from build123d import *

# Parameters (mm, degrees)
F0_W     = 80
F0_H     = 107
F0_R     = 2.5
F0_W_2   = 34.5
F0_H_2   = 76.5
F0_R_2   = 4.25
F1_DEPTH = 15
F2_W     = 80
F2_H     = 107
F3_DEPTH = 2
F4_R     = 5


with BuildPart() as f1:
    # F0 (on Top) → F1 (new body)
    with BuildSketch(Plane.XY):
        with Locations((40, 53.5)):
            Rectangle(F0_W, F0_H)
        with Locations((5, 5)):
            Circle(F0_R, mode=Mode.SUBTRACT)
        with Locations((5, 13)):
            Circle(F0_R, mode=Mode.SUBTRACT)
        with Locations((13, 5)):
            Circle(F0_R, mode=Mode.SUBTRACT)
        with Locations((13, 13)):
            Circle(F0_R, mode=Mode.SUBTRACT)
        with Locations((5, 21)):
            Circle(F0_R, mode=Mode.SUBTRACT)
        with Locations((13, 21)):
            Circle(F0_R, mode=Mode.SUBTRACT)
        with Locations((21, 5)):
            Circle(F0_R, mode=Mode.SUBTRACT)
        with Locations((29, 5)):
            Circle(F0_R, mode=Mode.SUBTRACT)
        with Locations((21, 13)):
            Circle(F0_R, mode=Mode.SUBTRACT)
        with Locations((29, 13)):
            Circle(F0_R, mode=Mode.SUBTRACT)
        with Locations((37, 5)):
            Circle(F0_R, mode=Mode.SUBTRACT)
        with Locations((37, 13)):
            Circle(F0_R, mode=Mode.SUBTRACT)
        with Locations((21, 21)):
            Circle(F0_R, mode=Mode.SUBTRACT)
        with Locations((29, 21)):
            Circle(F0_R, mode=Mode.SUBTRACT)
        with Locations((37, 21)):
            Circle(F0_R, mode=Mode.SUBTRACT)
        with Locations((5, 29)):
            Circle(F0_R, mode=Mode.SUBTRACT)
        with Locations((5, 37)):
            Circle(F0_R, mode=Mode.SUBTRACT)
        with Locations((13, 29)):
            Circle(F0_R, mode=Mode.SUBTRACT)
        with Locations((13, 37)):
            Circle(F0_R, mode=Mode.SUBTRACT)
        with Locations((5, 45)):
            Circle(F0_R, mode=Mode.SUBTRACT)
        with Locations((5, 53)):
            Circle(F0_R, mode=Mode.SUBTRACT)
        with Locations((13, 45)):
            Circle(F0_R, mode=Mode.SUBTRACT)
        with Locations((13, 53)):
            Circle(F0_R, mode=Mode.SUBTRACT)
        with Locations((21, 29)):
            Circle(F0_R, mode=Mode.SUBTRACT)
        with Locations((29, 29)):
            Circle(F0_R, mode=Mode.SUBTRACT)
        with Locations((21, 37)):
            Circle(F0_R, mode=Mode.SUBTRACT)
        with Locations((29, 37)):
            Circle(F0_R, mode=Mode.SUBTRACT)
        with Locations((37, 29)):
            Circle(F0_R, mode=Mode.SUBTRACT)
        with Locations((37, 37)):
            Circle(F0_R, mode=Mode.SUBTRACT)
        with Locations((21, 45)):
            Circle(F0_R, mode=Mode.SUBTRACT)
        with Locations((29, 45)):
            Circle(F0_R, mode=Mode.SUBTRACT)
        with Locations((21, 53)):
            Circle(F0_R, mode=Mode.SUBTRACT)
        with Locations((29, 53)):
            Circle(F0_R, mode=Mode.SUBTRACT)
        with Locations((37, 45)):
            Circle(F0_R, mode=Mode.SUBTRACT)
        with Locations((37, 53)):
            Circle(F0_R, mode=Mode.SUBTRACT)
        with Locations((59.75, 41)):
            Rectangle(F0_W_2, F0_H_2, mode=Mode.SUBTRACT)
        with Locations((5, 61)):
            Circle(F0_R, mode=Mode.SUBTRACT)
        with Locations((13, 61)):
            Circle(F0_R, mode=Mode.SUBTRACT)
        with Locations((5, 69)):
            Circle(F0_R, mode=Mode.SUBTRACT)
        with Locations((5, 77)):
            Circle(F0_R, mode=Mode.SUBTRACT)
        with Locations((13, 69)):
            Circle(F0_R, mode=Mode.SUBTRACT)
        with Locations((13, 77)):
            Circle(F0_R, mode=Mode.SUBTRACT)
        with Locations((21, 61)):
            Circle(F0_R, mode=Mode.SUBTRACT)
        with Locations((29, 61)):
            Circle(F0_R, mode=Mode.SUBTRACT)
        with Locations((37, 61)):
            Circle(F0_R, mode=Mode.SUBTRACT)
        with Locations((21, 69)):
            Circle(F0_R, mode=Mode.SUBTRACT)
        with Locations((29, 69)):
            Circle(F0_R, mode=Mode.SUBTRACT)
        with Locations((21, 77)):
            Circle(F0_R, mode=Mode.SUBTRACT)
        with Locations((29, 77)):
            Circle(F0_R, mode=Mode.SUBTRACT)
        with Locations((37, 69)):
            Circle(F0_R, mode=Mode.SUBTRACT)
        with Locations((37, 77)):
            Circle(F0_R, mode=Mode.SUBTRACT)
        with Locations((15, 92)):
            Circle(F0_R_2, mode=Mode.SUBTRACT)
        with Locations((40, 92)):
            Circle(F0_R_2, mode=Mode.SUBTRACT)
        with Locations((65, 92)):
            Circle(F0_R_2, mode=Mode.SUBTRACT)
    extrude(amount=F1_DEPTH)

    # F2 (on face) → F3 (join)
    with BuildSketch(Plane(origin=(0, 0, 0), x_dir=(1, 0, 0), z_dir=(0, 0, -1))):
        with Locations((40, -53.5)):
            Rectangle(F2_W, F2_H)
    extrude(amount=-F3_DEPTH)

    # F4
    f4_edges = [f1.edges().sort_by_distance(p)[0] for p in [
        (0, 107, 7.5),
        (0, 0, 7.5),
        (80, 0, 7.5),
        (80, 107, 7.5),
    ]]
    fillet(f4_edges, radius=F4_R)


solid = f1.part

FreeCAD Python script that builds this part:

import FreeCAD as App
import Part
import Sketcher
from FreeCAD import Vector
Q = App.Units.Quantity


def edges_at(feature, points):
    """Names of the edges that pass closest to the given points."""
    edges = feature.Shape.Edges
    near = lambda p: min(range(len(edges)), key=lambda i: edges[i].distToShape(Part.Vertex(*p))[0])
    return sorted({f"Edge{near(p) + 1}" for p in points})


def add_polygon(sketch, points):
    """Adds a closed chain of lines whose ends are joined by coincident constraints."""
    first, n = sketch.GeometryCount, len(points)
    for a, b in zip(points, points[1:] + points[:1]):
        sketch.addGeometry(Part.LineSegment(App.Vector(*a, 0), App.Vector(*b, 0)), False)
    for i in range(n):
        sketch.addConstraint(Sketcher.Constraint("Coincident", first + i, 2, first + (i + 1) % n, 1))

doc = App.newDocument("Part")
body = doc.addObject("PartDesign::Body", "Body")

sketch1 = doc.addObject("Sketcher::SketchObject", "Sketch")
body.addObject(sketch1)
sketch1.AttachmentSupport = (doc.XY_Plane, [""])
sketch1.MapMode = "FlatFace"
add_polygon(sketch1, [(0, 107), (0, 0), (80, 0), (80, 107)])
sketch1.addGeometry(Part.Circle(Vector(5, 5, 0), Vector(0, 0, 1), 2.5), False)
sketch1.addGeometry(Part.Circle(Vector(5, 13, 0), Vector(0, 0, 1), 2.5), False)
sketch1.addGeometry(Part.Circle(Vector(13, 5, 0), Vector(0, 0, 1), 2.5), False)
sketch1.addGeometry(Part.Circle(Vector(21, 5, 0), Vector(0, 0, 1), 2.5), False)
sketch1.addGeometry(Part.Circle(Vector(13, 13, 0), Vector(0, 0, 1), 2.5), False)
sketch1.addGeometry(Part.Circle(Vector(21, 13, 0), Vector(0, 0, 1), 2.5), False)
sketch1.addGeometry(Part.Circle(Vector(5, 21, 0), Vector(0, 0, 1), 2.5), False)
sketch1.addGeometry(Part.Circle(Vector(13, 21, 0), Vector(0, 0, 1), 2.5), False)
sketch1.addGeometry(Part.Circle(Vector(21, 21, 0), Vector(0, 0, 1), 2.5), False)
sketch1.addGeometry(Part.Circle(Vector(29, 5, 0), Vector(0, 0, 1), 2.5), False)
sketch1.addGeometry(Part.Circle(Vector(29, 13, 0), Vector(0, 0, 1), 2.5), False)
sketch1.addGeometry(Part.Circle(Vector(37, 5, 0), Vector(0, 0, 1), 2.5), False)
sketch1.addGeometry(Part.Circle(Vector(37, 13, 0), Vector(0, 0, 1), 2.5), False)
sketch1.addGeometry(Part.Circle(Vector(29, 21, 0), Vector(0, 0, 1), 2.5), False)
sketch1.addGeometry(Part.Circle(Vector(37, 21, 0), Vector(0, 0, 1), 2.5), False)
sketch1.addGeometry(Part.Circle(Vector(5, 29, 0), Vector(0, 0, 1), 2.5), False)
sketch1.addGeometry(Part.Circle(Vector(5, 37, 0), Vector(0, 0, 1), 2.5), False)
sketch1.addGeometry(Part.Circle(Vector(13, 29, 0), Vector(0, 0, 1), 2.5), False)
sketch1.addGeometry(Part.Circle(Vector(21, 29, 0), Vector(0, 0, 1), 2.5), False)
sketch1.addGeometry(Part.Circle(Vector(13, 37, 0), Vector(0, 0, 1), 2.5), False)
sketch1.addGeometry(Part.Circle(Vector(21, 37, 0), Vector(0, 0, 1), 2.5), False)
sketch1.addGeometry(Part.Circle(Vector(5, 45, 0), Vector(0, 0, 1), 2.5), False)
sketch1.addGeometry(Part.Circle(Vector(13, 45, 0), Vector(0, 0, 1), 2.5), False)
sketch1.addGeometry(Part.Circle(Vector(21, 45, 0), Vector(0, 0, 1), 2.5), False)
sketch1.addGeometry(Part.Circle(Vector(29, 29, 0), Vector(0, 0, 1), 2.5), False)
sketch1.addGeometry(Part.Circle(Vector(29, 37, 0), Vector(0, 0, 1), 2.5), False)
sketch1.addGeometry(Part.Circle(Vector(37, 29, 0), Vector(0, 0, 1), 2.5), False)
sketch1.addGeometry(Part.Circle(Vector(37, 37, 0), Vector(0, 0, 1), 2.5), False)
sketch1.addGeometry(Part.Circle(Vector(29, 45, 0), Vector(0, 0, 1), 2.5), False)
sketch1.addGeometry(Part.Circle(Vector(37, 45, 0), Vector(0, 0, 1), 2.5), False)
add_polygon(sketch1, [(77, 2.75), (42.5, 2.75), (42.5, 79.25), (77, 79.25)])
sketch1.addGeometry(Part.Circle(Vector(5, 53, 0), Vector(0, 0, 1), 2.5), False)
sketch1.addGeometry(Part.Circle(Vector(5, 61, 0), Vector(0, 0, 1), 2.5), False)
sketch1.addGeometry(Part.Circle(Vector(13, 53, 0), Vector(0, 0, 1), 2.5), False)
sketch1.addGeometry(Part.Circle(Vector(21, 53, 0), Vector(0, 0, 1), 2.5), False)
sketch1.addGeometry(Part.Circle(Vector(13, 61, 0), Vector(0, 0, 1), 2.5), False)
sketch1.addGeometry(Part.Circle(Vector(21, 61, 0), Vector(0, 0, 1), 2.5), False)
sketch1.addGeometry(Part.Circle(Vector(5, 69, 0), Vector(0, 0, 1), 2.5), False)
sketch1.addGeometry(Part.Circle(Vector(13, 69, 0), Vector(0, 0, 1), 2.5), False)
sketch1.addGeometry(Part.Circle(Vector(21, 69, 0), Vector(0, 0, 1), 2.5), False)
sketch1.addGeometry(Part.Circle(Vector(29, 53, 0), Vector(0, 0, 1), 2.5), False)
sketch1.addGeometry(Part.Circle(Vector(29, 61, 0), Vector(0, 0, 1), 2.5), False)
sketch1.addGeometry(Part.Circle(Vector(37, 53, 0), Vector(0, 0, 1), 2.5), False)
sketch1.addGeometry(Part.Circle(Vector(37, 61, 0), Vector(0, 0, 1), 2.5), False)
sketch1.addGeometry(Part.Circle(Vector(29, 69, 0), Vector(0, 0, 1), 2.5), False)
sketch1.addGeometry(Part.Circle(Vector(37, 69, 0), Vector(0, 0, 1), 2.5), False)
sketch1.addGeometry(Part.Circle(Vector(5, 77, 0), Vector(0, 0, 1), 2.5), False)
sketch1.addGeometry(Part.Circle(Vector(13, 77, 0), Vector(0, 0, 1), 2.5), False)
sketch1.addGeometry(Part.Circle(Vector(21, 77, 0), Vector(0, 0, 1), 2.5), False)
sketch1.addGeometry(Part.Circle(Vector(15, 92, 0), Vector(0, 0, 1), 4.25), False)
sketch1.addGeometry(Part.Circle(Vector(29, 77, 0), Vector(0, 0, 1), 2.5), False)
sketch1.addGeometry(Part.Circle(Vector(37, 77, 0), Vector(0, 0, 1), 2.5), False)
sketch1.addGeometry(Part.Circle(Vector(40, 92, 0), Vector(0, 0, 1), 4.25), False)
sketch1.addGeometry(Part.Circle(Vector(65, 92, 0), Vector(0, 0, 1), 4.25), False)
sketch1.addConstraint(Sketcher.Constraint("Vertical", 0))
sketch1.addConstraint(Sketcher.Constraint("Horizontal", 1))
sketch1.addConstraint(Sketcher.Constraint("Vertical", 2))
sketch1.addConstraint(Sketcher.Constraint("Horizontal", 3))
sketch1.addConstraint(Sketcher.Constraint("Horizontal", 34))
sketch1.addConstraint(Sketcher.Constraint("Vertical", 35))
sketch1.addConstraint(Sketcher.Constraint("Horizontal", 36))
sketch1.addConstraint(Sketcher.Constraint("Vertical", 37))
sketch1.addConstraint(Sketcher.Constraint("Coincident", 0, 2, -1, 1))
sketch1.addConstraint(Sketcher.Constraint("Equal", 4, 5))
sketch1.addConstraint(Sketcher.Constraint("Equal", 5, 6))
sketch1.addConstraint(Sketcher.Constraint("Equal", 6, 7))
sketch1.addConstraint(Sketcher.Constraint("Equal", 7, 8))
sketch1.addConstraint(Sketcher.Constraint("Equal", 8, 9))
sketch1.addConstraint(Sketcher.Constraint("Equal", 9, 10))
sketch1.addConstraint(Sketcher.Constraint("Equal", 10, 11))
sketch1.addConstraint(Sketcher.Constraint("Equal", 11, 12))
sketch1.addConstraint(Sketcher.Constraint("Equal", 12, 13))
sketch1.addConstraint(Sketcher.Constraint("Equal", 13, 14))
sketch1.addConstraint(Sketcher.Constraint("Equal", 14, 15))
sketch1.addConstraint(Sketcher.Constraint("Equal", 15, 16))
sketch1.addConstraint(Sketcher.Constraint("Equal", 16, 17))
sketch1.addConstraint(Sketcher.Constraint("Equal", 17, 18))
sketch1.addConstraint(Sketcher.Constraint("Equal", 18, 19))
sketch1.addConstraint(Sketcher.Constraint("Equal", 19, 20))
sketch1.addConstraint(Sketcher.Constraint("Equal", 20, 21))
sketch1.addConstraint(Sketcher.Constraint("Equal", 21, 22))
sketch1.addConstraint(Sketcher.Constraint("Equal", 22, 23))
sketch1.addConstraint(Sketcher.Constraint("Equal", 23, 24))
sketch1.addConstraint(Sketcher.Constraint("Equal", 24, 25))
sketch1.addConstraint(Sketcher.Constraint("Equal", 25, 26))
sketch1.addConstraint(Sketcher.Constraint("Equal", 26, 27))
sketch1.addConstraint(Sketcher.Constraint("Equal", 27, 28))
sketch1.addConstraint(Sketcher.Constraint("Equal", 28, 29))
sketch1.addConstraint(Sketcher.Constraint("Equal", 29, 30))
sketch1.addConstraint(Sketcher.Constraint("Equal", 30, 31))
sketch1.addConstraint(Sketcher.Constraint("Equal", 31, 32))
sketch1.addConstraint(Sketcher.Constraint("Equal", 32, 33))
sketch1.addConstraint(Sketcher.Constraint("Equal", 33, 38))
sketch1.addConstraint(Sketcher.Constraint("Equal", 38, 39))
sketch1.addConstraint(Sketcher.Constraint("Equal", 39, 40))
sketch1.addConstraint(Sketcher.Constraint("Equal", 40, 41))
sketch1.addConstraint(Sketcher.Constraint("Equal", 41, 42))
sketch1.addConstraint(Sketcher.Constraint("Equal", 42, 43))
sketch1.addConstraint(Sketcher.Constraint("Equal", 43, 44))
sketch1.addConstraint(Sketcher.Constraint("Equal", 44, 45))
sketch1.addConstraint(Sketcher.Constraint("Equal", 45, 46))
sketch1.addConstraint(Sketcher.Constraint("Equal", 46, 47))
sketch1.addConstraint(Sketcher.Constraint("Equal", 47, 48))
sketch1.addConstraint(Sketcher.Constraint("Equal", 48, 49))
sketch1.addConstraint(Sketcher.Constraint("Equal", 49, 50))
sketch1.addConstraint(Sketcher.Constraint("Equal", 50, 51))
sketch1.addConstraint(Sketcher.Constraint("Equal", 51, 52))
sketch1.addConstraint(Sketcher.Constraint("Equal", 52, 53))
sketch1.addConstraint(Sketcher.Constraint("Equal", 53, 54))
sketch1.addConstraint(Sketcher.Constraint("Equal", 54, 55))
sketch1.addConstraint(Sketcher.Constraint("Equal", 55, 57))
sketch1.addConstraint(Sketcher.Constraint("Equal", 57, 58))
sketch1.addConstraint(Sketcher.Constraint("Equal", 56, 59))
sketch1.addConstraint(Sketcher.Constraint("Equal", 59, 60))
sketch1.addConstraint(Sketcher.Constraint("Horizontal", 4, 3, 6, 3))
sketch1.addConstraint(Sketcher.Constraint("Horizontal", 6, 3, 7, 3))
sketch1.addConstraint(Sketcher.Constraint("Horizontal", 5, 3, 8, 3))
sketch1.addConstraint(Sketcher.Constraint("Horizontal", 8, 3, 9, 3))
sketch1.addConstraint(Sketcher.Constraint("Horizontal", 10, 3, 11, 3))
sketch1.addConstraint(Sketcher.Constraint("Horizontal", 11, 3, 12, 3))
sketch1.addConstraint(Sketcher.Constraint("Horizontal", 7, 3, 13, 3))
sketch1.addConstraint(Sketcher.Constraint("Horizontal", 9, 3, 14, 3))
sketch1.addConstraint(Sketcher.Constraint("Horizontal", 13, 3, 15, 3))
sketch1.addConstraint(Sketcher.Constraint("Horizontal", 14, 3, 16, 3))
sketch1.addConstraint(Sketcher.Constraint("Horizontal", 12, 3, 17, 3))
sketch1.addConstraint(Sketcher.Constraint("Horizontal", 17, 3, 18, 3))
sketch1.addConstraint(Sketcher.Constraint("Horizontal", 19, 3, 21, 3))
sketch1.addConstraint(Sketcher.Constraint("Horizontal", 21, 3, 22, 3))
sketch1.addConstraint(Sketcher.Constraint("Horizontal", 20, 3, 23, 3))
sketch1.addConstraint(Sketcher.Constraint("Horizontal", 23, 3, 24, 3))
sketch1.addConstraint(Sketcher.Constraint("Horizontal", 25, 3, 26, 3))
sketch1.addConstraint(Sketcher.Constraint("Horizontal", 26, 3, 27, 3))
sketch1.addConstraint(Sketcher.Constraint("Horizontal", 22, 3, 28, 3))
sketch1.addConstraint(Sketcher.Constraint("Horizontal", 24, 3, 29, 3))
sketch1.addConstraint(Sketcher.Constraint("Horizontal", 28, 3, 30, 3))
sketch1.addConstraint(Sketcher.Constraint("Horizontal", 29, 3, 31, 3))
sketch1.addConstraint(Sketcher.Constraint("Horizontal", 27, 3, 32, 3))
sketch1.addConstraint(Sketcher.Constraint("Horizontal", 32, 3, 33, 3))
sketch1.addConstraint(Sketcher.Constraint("Horizontal", 38, 3, 40, 3))
sketch1.addConstraint(Sketcher.Constraint("Horizontal", 40, 3, 41, 3))
sketch1.addConstraint(Sketcher.Constraint("Horizontal", 39, 3, 42, 3))
sketch1.addConstraint(Sketcher.Constraint("Horizontal", 42, 3, 43, 3))
sketch1.addConstraint(Sketcher.Constraint("Horizontal", 44, 3, 45, 3))
sketch1.addConstraint(Sketcher.Constraint("Horizontal", 45, 3, 46, 3))
sketch1.addConstraint(Sketcher.Constraint("Horizontal", 41, 3, 47, 3))
sketch1.addConstraint(Sketcher.Constraint("Horizontal", 43, 3, 48, 3))
sketch1.addConstraint(Sketcher.Constraint("Horizontal", 47, 3, 49, 3))
sketch1.addConstraint(Sketcher.Constraint("Horizontal", 48, 3, 50, 3))
sketch1.addConstraint(Sketcher.Constraint("Horizontal", 46, 3, 51, 3))
sketch1.addConstraint(Sketcher.Constraint("Horizontal", 51, 3, 52, 3))
sketch1.addConstraint(Sketcher.Constraint("Horizontal", 53, 3, 54, 3))
sketch1.addConstraint(Sketcher.Constraint("Horizontal", 54, 3, 55, 3))
sketch1.addConstraint(Sketcher.Constraint("Horizontal", 55, 3, 57, 3))
sketch1.addConstraint(Sketcher.Constraint("Horizontal", 57, 3, 58, 3))
sketch1.addConstraint(Sketcher.Constraint("Horizontal", 56, 3, 59, 3))
sketch1.addConstraint(Sketcher.Constraint("Horizontal", 59, 3, 60, 3))
sketch1.addConstraint(Sketcher.Constraint("Vertical", 4, 3, 5, 3))
sketch1.addConstraint(Sketcher.Constraint("Vertical", 6, 3, 8, 3))
sketch1.addConstraint(Sketcher.Constraint("Vertical", 7, 3, 9, 3))
sketch1.addConstraint(Sketcher.Constraint("Vertical", 5, 3, 10, 3))
sketch1.addConstraint(Sketcher.Constraint("Vertical", 8, 3, 11, 3))
sketch1.addConstraint(Sketcher.Constraint("Vertical", 9, 3, 12, 3))
sketch1.addConstraint(Sketcher.Constraint("Vertical", 13, 3, 14, 3))
sketch1.addConstraint(Sketcher.Constraint("Vertical", 15, 3, 16, 3))
sketch1.addConstraint(Sketcher.Constraint("Vertical", 14, 3, 17, 3))
sketch1.addConstraint(Sketcher.Constraint("Vertical", 16, 3, 18, 3))
sketch1.addConstraint(Sketcher.Constraint("Vertical", 10, 3, 19, 3))
sketch1.addConstraint(Sketcher.Constraint("Vertical", 19, 3, 20, 3))
sketch1.addConstraint(Sketcher.Constraint("Vertical", 11, 3, 21, 3))
sketch1.addConstraint(Sketcher.Constraint("Vertical", 12, 3, 22, 3))
sketch1.addConstraint(Sketcher.Constraint("Vertical", 21, 3, 23, 3))
sketch1.addConstraint(Sketcher.Constraint("Vertical", 22, 3, 24, 3))
sketch1.addConstraint(Sketcher.Constraint("Vertical", 20, 3, 25, 3))
sketch1.addConstraint(Sketcher.Constraint("Vertical", 23, 3, 26, 3))
sketch1.addConstraint(Sketcher.Constraint("Vertical", 24, 3, 27, 3))
sketch1.addConstraint(Sketcher.Constraint("Vertical", 17, 3, 28, 3))
sketch1.addConstraint(Sketcher.Constraint("Vertical", 28, 3, 29, 3))
sketch1.addConstraint(Sketcher.Constraint("Vertical", 18, 3, 30, 3))
sketch1.addConstraint(Sketcher.Constraint("Vertical", 30, 3, 31, 3))
sketch1.addConstraint(Sketcher.Constraint("Vertical", 29, 3, 32, 3))
sketch1.addConstraint(Sketcher.Constraint("Vertical", 31, 3, 33, 3))
sketch1.addConstraint(Sketcher.Constraint("Vertical", 25, 3, 38, 3))
sketch1.addConstraint(Sketcher.Constraint("Vertical", 38, 3, 39, 3))
sketch1.addConstraint(Sketcher.Constraint("Vertical", 26, 3, 40, 3))
sketch1.addConstraint(Sketcher.Constraint("Vertical", 27, 3, 41, 3))
sketch1.addConstraint(Sketcher.Constraint("Vertical", 40, 3, 42, 3))
sketch1.addConstraint(Sketcher.Constraint("Vertical", 41, 3, 43, 3))
sketch1.addConstraint(Sketcher.Constraint("Vertical", 39, 3, 44, 3))
sketch1.addConstraint(Sketcher.Constraint("Vertical", 42, 3, 45, 3))
sketch1.addConstraint(Sketcher.Constraint("Vertical", 43, 3, 46, 3))
sketch1.addConstraint(Sketcher.Constraint("Vertical", 32, 3, 47, 3))
sketch1.addConstraint(Sketcher.Constraint("Vertical", 47, 3, 48, 3))
sketch1.addConstraint(Sketcher.Constraint("Vertical", 33, 3, 49, 3))
sketch1.addConstraint(Sketcher.Constraint("Vertical", 49, 3, 50, 3))
sketch1.addConstraint(Sketcher.Constraint("Vertical", 48, 3, 51, 3))
sketch1.addConstraint(Sketcher.Constraint("Vertical", 50, 3, 52, 3))
sketch1.addConstraint(Sketcher.Constraint("Vertical", 44, 3, 53, 3))
sketch1.addConstraint(Sketcher.Constraint("Vertical", 45, 3, 54, 3))
sketch1.addConstraint(Sketcher.Constraint("Vertical", 46, 3, 55, 3))
sketch1.addConstraint(Sketcher.Constraint("Vertical", 51, 3, 57, 3))
sketch1.addConstraint(Sketcher.Constraint("Vertical", 52, 3, 58, 3))
sketch1.addConstraint(Sketcher.Constraint("Diameter", 4, Q("5 mm")))
sketch1.addConstraint(Sketcher.Constraint("Diameter", 56, Q("8.5 mm")))
sketch1.addConstraint(Sketcher.Constraint("DistanceX", 1, 1, 1, 2, Q("80 mm")))
sketch1.addConstraint(Sketcher.Constraint("DistanceY", 0, 2, 0, 1, Q("107 mm")))
sketch1.addConstraint(Sketcher.Constraint("DistanceX", 34, 2, 34, 1, Q("34.5 mm")))
sketch1.addConstraint(Sketcher.Constraint("DistanceY", 35, 1, 35, 2, Q("76.5 mm")))
sketch1.addConstraint(Sketcher.Constraint("DistanceX", -1, 1, 4, 3, Q("5 mm")))
sketch1.addConstraint(Sketcher.Constraint("DistanceY", -1, 1, 4, 3, Q("5 mm")))
sketch1.addConstraint(Sketcher.Constraint("DistanceY", -1, 1, 5, 3, Q("13 mm")))
sketch1.addConstraint(Sketcher.Constraint("DistanceX", -1, 1, 6, 3, Q("13 mm")))
sketch1.addConstraint(Sketcher.Constraint("DistanceX", -1, 1, 7, 3, Q("21 mm")))
sketch1.addConstraint(Sketcher.Constraint("DistanceY", -1, 1, 10, 3, Q("21 mm")))
sketch1.addConstraint(Sketcher.Constraint("DistanceX", -1, 1, 13, 3, Q("29 mm")))
sketch1.addConstraint(Sketcher.Constraint("DistanceX", -1, 1, 15, 3, Q("37 mm")))
sketch1.addConstraint(Sketcher.Constraint("DistanceY", -1, 1, 19, 3, Q("29 mm")))
sketch1.addConstraint(Sketcher.Constraint("DistanceY", -1, 1, 20, 3, Q("37 mm")))
sketch1.addConstraint(Sketcher.Constraint("DistanceY", -1, 1, 25, 3, Q("45 mm")))
sketch1.addConstraint(Sketcher.Constraint("DistanceY", -1, 1, 38, 3, Q("53 mm")))
sketch1.addConstraint(Sketcher.Constraint("DistanceY", -1, 1, 39, 3, Q("61 mm")))
sketch1.addConstraint(Sketcher.Constraint("DistanceY", -1, 1, 44, 3, Q("69 mm")))
sketch1.addConstraint(Sketcher.Constraint("DistanceY", -1, 1, 53, 3, Q("77 mm")))
sketch1.addConstraint(Sketcher.Constraint("DistanceX", -1, 1, 56, 3, Q("15 mm")))
sketch1.addConstraint(Sketcher.Constraint("DistanceY", -1, 1, 56, 3, Q("92 mm")))
sketch1.addConstraint(Sketcher.Constraint("DistanceX", -1, 1, 59, 3, Q("40 mm")))
sketch1.addConstraint(Sketcher.Constraint("DistanceX", -1, 1, 60, 3, Q("65 mm")))
sketch1.addConstraint(Sketcher.Constraint("DistanceX", -1, 1, 36, 2, Q("77 mm")))
sketch1.addConstraint(Sketcher.Constraint("DistanceY", -1, 1, 34, 2, Q("2.75 mm")))
pad1 = doc.addObject("PartDesign::Pad", "Pad")
body.addObject(pad1)
pad1.Profile = sketch1
pad1.Length = 15

sketch2 = doc.addObject("Sketcher::SketchObject", "Sketch001")
body.addObject(sketch2)
sketch2.AttachmentSupport = (doc.XY_Plane, [""])
sketch2.MapMode = "FlatFace"
add_polygon(sketch2, [(0, 0), (0, 107), (80, 107), (80, 0)])
sketch2.addConstraint(Sketcher.Constraint("Vertical", 0))
sketch2.addConstraint(Sketcher.Constraint("Horizontal", 1))
sketch2.addConstraint(Sketcher.Constraint("Vertical", 2))
sketch2.addConstraint(Sketcher.Constraint("Horizontal", 3))
sketch2.addConstraint(Sketcher.Constraint("Coincident", 3, 2, -1, 1))
sketch2.addConstraint(Sketcher.Constraint("DistanceX", 1, 1, 1, 2, Q("80 mm")))
sketch2.addConstraint(Sketcher.Constraint("DistanceY", 0, 1, 0, 2, Q("107 mm")))
pad2 = doc.addObject("PartDesign::Pad", "Pad001")
body.addObject(pad2)
pad2.Profile = sketch2
pad2.Length = 2
doc.recompute()

fillet = doc.addObject("PartDesign::Fillet", "Fillet")
body.addObject(fillet)
fillet.Base = (pad2, edges_at(pad2, [
    (0, 107, 7.5),
    (0, 0, 7.5),
    (80, 0, 7.5),
    (80, 107, 7.5),
]))
fillet.Radius = 5

doc.recompute()
